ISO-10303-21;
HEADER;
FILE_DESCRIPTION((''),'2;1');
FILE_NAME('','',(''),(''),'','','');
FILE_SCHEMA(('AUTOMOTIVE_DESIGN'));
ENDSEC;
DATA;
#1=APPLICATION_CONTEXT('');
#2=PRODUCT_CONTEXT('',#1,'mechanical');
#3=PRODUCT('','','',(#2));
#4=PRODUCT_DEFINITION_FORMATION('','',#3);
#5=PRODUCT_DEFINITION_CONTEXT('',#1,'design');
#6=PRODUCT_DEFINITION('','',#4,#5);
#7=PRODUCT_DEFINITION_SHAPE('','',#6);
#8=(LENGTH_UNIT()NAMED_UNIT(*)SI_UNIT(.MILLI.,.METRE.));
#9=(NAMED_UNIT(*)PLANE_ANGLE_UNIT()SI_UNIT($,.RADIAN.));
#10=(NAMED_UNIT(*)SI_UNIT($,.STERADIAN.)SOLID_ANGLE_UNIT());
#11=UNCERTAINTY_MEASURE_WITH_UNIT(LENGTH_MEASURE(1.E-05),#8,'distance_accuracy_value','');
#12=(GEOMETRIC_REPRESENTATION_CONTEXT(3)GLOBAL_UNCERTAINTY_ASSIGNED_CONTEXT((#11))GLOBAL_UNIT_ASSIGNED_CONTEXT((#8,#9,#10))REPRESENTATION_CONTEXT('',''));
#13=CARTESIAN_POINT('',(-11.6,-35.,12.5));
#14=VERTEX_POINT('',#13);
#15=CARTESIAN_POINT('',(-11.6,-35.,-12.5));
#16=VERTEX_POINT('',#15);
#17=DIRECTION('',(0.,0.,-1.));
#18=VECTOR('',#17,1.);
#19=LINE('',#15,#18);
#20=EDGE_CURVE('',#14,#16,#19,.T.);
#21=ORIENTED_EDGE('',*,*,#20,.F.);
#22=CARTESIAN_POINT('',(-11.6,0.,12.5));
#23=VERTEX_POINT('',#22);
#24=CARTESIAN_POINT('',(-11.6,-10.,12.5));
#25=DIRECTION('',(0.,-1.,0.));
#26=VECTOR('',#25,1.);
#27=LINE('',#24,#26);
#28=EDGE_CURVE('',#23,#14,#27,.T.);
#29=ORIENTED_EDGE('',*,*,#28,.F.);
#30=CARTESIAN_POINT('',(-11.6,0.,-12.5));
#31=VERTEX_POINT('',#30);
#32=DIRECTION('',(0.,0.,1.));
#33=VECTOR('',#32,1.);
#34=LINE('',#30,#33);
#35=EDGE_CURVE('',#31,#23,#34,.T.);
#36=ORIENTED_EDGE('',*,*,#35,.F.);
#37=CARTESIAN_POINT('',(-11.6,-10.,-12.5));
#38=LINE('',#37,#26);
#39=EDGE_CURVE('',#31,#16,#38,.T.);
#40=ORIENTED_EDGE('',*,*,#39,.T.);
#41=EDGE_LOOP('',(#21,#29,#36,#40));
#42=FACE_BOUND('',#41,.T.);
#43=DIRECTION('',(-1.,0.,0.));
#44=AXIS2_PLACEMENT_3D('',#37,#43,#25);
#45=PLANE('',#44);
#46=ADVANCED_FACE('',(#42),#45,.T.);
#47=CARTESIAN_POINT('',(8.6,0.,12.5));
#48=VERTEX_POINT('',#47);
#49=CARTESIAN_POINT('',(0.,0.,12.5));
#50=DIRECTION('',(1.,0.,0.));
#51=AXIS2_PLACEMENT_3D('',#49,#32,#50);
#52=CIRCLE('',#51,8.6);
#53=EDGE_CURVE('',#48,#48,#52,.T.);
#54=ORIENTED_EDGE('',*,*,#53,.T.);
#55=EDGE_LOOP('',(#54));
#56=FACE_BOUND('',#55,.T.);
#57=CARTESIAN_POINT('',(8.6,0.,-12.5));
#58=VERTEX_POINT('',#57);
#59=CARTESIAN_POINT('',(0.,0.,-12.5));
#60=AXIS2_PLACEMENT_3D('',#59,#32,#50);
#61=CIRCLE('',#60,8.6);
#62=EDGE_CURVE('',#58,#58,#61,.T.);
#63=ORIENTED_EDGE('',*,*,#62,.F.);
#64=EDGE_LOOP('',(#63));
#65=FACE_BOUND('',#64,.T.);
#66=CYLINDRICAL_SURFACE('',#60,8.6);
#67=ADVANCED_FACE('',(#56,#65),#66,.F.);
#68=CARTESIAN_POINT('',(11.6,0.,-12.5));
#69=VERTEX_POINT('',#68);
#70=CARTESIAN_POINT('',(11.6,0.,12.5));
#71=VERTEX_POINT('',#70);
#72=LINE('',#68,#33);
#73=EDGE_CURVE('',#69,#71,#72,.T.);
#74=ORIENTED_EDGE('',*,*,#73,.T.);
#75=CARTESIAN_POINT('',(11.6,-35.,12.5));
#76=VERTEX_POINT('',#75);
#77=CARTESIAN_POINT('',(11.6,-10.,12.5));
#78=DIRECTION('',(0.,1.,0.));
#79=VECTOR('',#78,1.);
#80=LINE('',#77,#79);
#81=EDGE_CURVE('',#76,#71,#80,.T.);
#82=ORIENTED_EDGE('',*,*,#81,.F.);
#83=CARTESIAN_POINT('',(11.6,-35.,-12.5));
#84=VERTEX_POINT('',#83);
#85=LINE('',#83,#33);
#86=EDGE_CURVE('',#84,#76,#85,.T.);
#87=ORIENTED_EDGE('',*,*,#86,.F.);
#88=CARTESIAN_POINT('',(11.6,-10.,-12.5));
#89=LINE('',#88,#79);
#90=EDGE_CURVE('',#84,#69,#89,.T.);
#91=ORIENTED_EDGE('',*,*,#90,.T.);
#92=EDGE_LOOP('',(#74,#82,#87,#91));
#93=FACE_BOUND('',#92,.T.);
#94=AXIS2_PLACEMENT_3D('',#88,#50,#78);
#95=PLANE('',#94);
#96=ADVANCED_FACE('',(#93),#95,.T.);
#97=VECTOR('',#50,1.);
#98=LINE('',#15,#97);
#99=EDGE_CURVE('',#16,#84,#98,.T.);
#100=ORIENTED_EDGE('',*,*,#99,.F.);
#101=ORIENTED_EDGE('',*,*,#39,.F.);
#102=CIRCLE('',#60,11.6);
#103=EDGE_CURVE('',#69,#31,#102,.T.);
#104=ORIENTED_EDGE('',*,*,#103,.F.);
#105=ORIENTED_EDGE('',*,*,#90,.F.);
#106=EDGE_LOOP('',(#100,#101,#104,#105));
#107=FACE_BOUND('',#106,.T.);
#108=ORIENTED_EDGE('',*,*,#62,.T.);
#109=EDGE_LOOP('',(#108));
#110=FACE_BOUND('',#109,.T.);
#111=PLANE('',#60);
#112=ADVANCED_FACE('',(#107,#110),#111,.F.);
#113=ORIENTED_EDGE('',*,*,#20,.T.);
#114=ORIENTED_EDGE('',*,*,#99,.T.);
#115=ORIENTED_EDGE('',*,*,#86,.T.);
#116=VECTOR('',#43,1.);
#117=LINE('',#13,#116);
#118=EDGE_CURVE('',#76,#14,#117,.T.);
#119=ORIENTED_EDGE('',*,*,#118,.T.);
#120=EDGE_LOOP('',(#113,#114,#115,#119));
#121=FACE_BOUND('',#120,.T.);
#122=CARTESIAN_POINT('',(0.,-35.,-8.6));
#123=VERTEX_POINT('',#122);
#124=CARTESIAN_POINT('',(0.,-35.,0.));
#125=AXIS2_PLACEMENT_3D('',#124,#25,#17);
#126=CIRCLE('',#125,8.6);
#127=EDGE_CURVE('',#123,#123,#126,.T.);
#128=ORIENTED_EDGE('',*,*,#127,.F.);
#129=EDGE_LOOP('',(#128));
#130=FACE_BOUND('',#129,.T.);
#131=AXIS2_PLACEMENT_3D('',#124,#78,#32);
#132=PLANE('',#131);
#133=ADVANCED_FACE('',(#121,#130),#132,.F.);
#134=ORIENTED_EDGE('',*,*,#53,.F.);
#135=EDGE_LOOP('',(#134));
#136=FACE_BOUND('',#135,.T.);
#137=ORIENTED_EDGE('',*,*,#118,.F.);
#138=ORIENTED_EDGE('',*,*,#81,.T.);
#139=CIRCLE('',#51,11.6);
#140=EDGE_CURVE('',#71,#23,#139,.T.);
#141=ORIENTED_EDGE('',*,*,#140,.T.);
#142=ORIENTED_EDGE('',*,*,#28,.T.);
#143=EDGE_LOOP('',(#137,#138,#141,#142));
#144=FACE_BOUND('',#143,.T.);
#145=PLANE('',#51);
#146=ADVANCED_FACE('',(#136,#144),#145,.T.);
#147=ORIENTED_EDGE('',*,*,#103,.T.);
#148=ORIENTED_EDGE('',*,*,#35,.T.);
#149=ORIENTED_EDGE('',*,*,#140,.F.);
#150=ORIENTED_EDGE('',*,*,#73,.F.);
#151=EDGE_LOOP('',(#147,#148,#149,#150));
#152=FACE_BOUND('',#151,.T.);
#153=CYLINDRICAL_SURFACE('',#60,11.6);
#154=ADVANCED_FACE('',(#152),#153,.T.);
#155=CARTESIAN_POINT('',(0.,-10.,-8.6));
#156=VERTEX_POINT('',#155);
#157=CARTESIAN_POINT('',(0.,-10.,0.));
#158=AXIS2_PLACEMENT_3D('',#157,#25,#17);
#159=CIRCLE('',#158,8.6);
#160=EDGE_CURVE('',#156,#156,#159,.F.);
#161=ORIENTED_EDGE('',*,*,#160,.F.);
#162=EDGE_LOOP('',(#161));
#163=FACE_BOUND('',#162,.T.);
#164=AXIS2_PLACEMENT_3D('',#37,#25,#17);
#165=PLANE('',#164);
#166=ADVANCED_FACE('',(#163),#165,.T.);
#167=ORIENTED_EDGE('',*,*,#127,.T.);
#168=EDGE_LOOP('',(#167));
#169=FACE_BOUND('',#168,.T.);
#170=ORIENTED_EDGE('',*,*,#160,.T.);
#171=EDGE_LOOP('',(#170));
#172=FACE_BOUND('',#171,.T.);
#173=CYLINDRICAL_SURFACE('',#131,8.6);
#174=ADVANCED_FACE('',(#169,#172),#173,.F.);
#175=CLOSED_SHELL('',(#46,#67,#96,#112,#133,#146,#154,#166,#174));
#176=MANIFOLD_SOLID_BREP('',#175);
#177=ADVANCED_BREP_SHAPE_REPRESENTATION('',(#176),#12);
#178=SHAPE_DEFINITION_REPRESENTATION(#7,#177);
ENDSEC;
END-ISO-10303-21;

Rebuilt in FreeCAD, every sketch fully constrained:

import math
import FreeCAD as App
import Part
import Sketcher


def add_polygon(sketch, points):
    """Adds a closed chain of lines whose ends are joined by coincident constraints."""
    first, n = sketch.GeometryCount, len(points)
    for a, b in zip(points, points[1:] + points[:1]):
        sketch.addGeometry(Part.LineSegment(App.Vector(*a, 0), App.Vector(*b, 0)), False)
    for i in range(n):
        sketch.addConstraint(Sketcher.Constraint("Coincident", first + i, 2, first + (i + 1) % n, 1))

doc = App.newDocument("Part")
body = doc.addObject("PartDesign::Body", "Body")

# Sketch on XY plane
sketch1 = body.newObject("Sketcher::SketchObject", "Sketch")
sketch1.AttachmentSupport = (doc.getObject("XY_Plane"), [""])
sketch1.MapMode = "FlatFace"
sketch1.addGeometry(Part.LineSegment(App.Vector(-12, -10, 0), App.Vector(12, -10, 0)), False)
sketch1.addGeometry(Part.LineSegment(App.Vector(12, -10, 0), App.Vector(12, 0, 0)), False)
sketch1.addGeometry(Part.ArcOfCircle(Part.Circle(App.Vector(0, 0, 0), App.Vector(0, 0, 1), 12), math.radians(0), math.radians(180)), False)
sketch1.addGeometry(Part.LineSegment(App.Vector(-12, 0, 0), App.Vector(-12, -10, 0)), False)
sketch1.addGeometry(Part.Circle(App.Vector(0, 0, 0), App.Vector(0, 0, 1), 9), False)
sketch1.addConstraint(Sketcher.Constraint("Coincident", 0, 2, 1, 1))
sketch1.addConstraint(Sketcher.Constraint("Tangent", 1, 2, 2, 1))
sketch1.addConstraint(Sketcher.Constraint("Tangent", 2, 2, 3, 1))
sketch1.addConstraint(Sketcher.Constraint("Coincident", 3, 2, 0, 1))
sketch1.addConstraint(Sketcher.Constraint("Horizontal", 0))
sketch1.addConstraint(Sketcher.Constraint("Vertical", 1))
sketch1.addConstraint(Sketcher.Constraint("Vertical", 3))
sketch1.addConstraint(Sketcher.Constraint("Coincident", 2, 3, -1, 1))
sketch1.addConstraint(Sketcher.Constraint("Coincident", 4, 3, -1, 1))
sketch1.addConstraint(Sketcher.Constraint("Diameter", 4, 17.2))
sketch1.addConstraint(Sketcher.Constraint("Radius", 2, 11.6))
sketch1.addConstraint(Sketcher.Constraint("DistanceY", 1, 1, 1, 2, 10.0))
pad1 = body.newObject("PartDesign::Pad", "Pad")
pad1.Profile = sketch1
pad1.Length = 25
pad1.Midplane = True

# Sketch on XZ plane
sketch2 = body.newObject("Sketcher::SketchObject", "Sketch001")
sketch2.AttachmentSupport = (doc.getObject("XZ_Plane"), [""])
sketch2.MapMode = "FlatFace"
sketch2.AttachmentOffset = App.Placement(App.Vector(0, 0, 10), App.Rotation())
add_polygon(sketch2, [(12, -12), (12, 12), (-12, 12), (-12, -12)])  # lines 0-3
sketch2.addGeometry(Part.Circle(App.Vector(0, 0, 0), App.Vector(0, 0, 1), 9), False)  # 4
sketch2.addConstraint(Sketcher.Constraint("Vertical", 0))
sketch2.addConstraint(Sketcher.Constraint("Horizontal", 1))
sketch2.addConstraint(Sketcher.Constraint("Vertical", 2))
sketch2.addConstraint(Sketcher.Constraint("Horizontal", 3))
sketch2.addConstraint(Sketcher.Constraint("Coincident", 4, 3, -1, 1))
sketch2.addConstraint(Sketcher.Constraint("Symmetric", 0, 2, 2, 2, -1, 1))
sketch2.addConstraint(Sketcher.Constraint("Diameter", 4, 17.2))
sketch2.addConstraint(Sketcher.Constraint("DistanceY", 0, 1, 0, 2, 25.0))
sketch2.addConstraint(Sketcher.Constraint("DistanceX", 1, 2, 1, 1, 23.2))
pad2 = body.newObject("PartDesign::Pad", "Pad001")
pad2.Profile = sketch2
pad2.Length = 25

doc.recompute()
